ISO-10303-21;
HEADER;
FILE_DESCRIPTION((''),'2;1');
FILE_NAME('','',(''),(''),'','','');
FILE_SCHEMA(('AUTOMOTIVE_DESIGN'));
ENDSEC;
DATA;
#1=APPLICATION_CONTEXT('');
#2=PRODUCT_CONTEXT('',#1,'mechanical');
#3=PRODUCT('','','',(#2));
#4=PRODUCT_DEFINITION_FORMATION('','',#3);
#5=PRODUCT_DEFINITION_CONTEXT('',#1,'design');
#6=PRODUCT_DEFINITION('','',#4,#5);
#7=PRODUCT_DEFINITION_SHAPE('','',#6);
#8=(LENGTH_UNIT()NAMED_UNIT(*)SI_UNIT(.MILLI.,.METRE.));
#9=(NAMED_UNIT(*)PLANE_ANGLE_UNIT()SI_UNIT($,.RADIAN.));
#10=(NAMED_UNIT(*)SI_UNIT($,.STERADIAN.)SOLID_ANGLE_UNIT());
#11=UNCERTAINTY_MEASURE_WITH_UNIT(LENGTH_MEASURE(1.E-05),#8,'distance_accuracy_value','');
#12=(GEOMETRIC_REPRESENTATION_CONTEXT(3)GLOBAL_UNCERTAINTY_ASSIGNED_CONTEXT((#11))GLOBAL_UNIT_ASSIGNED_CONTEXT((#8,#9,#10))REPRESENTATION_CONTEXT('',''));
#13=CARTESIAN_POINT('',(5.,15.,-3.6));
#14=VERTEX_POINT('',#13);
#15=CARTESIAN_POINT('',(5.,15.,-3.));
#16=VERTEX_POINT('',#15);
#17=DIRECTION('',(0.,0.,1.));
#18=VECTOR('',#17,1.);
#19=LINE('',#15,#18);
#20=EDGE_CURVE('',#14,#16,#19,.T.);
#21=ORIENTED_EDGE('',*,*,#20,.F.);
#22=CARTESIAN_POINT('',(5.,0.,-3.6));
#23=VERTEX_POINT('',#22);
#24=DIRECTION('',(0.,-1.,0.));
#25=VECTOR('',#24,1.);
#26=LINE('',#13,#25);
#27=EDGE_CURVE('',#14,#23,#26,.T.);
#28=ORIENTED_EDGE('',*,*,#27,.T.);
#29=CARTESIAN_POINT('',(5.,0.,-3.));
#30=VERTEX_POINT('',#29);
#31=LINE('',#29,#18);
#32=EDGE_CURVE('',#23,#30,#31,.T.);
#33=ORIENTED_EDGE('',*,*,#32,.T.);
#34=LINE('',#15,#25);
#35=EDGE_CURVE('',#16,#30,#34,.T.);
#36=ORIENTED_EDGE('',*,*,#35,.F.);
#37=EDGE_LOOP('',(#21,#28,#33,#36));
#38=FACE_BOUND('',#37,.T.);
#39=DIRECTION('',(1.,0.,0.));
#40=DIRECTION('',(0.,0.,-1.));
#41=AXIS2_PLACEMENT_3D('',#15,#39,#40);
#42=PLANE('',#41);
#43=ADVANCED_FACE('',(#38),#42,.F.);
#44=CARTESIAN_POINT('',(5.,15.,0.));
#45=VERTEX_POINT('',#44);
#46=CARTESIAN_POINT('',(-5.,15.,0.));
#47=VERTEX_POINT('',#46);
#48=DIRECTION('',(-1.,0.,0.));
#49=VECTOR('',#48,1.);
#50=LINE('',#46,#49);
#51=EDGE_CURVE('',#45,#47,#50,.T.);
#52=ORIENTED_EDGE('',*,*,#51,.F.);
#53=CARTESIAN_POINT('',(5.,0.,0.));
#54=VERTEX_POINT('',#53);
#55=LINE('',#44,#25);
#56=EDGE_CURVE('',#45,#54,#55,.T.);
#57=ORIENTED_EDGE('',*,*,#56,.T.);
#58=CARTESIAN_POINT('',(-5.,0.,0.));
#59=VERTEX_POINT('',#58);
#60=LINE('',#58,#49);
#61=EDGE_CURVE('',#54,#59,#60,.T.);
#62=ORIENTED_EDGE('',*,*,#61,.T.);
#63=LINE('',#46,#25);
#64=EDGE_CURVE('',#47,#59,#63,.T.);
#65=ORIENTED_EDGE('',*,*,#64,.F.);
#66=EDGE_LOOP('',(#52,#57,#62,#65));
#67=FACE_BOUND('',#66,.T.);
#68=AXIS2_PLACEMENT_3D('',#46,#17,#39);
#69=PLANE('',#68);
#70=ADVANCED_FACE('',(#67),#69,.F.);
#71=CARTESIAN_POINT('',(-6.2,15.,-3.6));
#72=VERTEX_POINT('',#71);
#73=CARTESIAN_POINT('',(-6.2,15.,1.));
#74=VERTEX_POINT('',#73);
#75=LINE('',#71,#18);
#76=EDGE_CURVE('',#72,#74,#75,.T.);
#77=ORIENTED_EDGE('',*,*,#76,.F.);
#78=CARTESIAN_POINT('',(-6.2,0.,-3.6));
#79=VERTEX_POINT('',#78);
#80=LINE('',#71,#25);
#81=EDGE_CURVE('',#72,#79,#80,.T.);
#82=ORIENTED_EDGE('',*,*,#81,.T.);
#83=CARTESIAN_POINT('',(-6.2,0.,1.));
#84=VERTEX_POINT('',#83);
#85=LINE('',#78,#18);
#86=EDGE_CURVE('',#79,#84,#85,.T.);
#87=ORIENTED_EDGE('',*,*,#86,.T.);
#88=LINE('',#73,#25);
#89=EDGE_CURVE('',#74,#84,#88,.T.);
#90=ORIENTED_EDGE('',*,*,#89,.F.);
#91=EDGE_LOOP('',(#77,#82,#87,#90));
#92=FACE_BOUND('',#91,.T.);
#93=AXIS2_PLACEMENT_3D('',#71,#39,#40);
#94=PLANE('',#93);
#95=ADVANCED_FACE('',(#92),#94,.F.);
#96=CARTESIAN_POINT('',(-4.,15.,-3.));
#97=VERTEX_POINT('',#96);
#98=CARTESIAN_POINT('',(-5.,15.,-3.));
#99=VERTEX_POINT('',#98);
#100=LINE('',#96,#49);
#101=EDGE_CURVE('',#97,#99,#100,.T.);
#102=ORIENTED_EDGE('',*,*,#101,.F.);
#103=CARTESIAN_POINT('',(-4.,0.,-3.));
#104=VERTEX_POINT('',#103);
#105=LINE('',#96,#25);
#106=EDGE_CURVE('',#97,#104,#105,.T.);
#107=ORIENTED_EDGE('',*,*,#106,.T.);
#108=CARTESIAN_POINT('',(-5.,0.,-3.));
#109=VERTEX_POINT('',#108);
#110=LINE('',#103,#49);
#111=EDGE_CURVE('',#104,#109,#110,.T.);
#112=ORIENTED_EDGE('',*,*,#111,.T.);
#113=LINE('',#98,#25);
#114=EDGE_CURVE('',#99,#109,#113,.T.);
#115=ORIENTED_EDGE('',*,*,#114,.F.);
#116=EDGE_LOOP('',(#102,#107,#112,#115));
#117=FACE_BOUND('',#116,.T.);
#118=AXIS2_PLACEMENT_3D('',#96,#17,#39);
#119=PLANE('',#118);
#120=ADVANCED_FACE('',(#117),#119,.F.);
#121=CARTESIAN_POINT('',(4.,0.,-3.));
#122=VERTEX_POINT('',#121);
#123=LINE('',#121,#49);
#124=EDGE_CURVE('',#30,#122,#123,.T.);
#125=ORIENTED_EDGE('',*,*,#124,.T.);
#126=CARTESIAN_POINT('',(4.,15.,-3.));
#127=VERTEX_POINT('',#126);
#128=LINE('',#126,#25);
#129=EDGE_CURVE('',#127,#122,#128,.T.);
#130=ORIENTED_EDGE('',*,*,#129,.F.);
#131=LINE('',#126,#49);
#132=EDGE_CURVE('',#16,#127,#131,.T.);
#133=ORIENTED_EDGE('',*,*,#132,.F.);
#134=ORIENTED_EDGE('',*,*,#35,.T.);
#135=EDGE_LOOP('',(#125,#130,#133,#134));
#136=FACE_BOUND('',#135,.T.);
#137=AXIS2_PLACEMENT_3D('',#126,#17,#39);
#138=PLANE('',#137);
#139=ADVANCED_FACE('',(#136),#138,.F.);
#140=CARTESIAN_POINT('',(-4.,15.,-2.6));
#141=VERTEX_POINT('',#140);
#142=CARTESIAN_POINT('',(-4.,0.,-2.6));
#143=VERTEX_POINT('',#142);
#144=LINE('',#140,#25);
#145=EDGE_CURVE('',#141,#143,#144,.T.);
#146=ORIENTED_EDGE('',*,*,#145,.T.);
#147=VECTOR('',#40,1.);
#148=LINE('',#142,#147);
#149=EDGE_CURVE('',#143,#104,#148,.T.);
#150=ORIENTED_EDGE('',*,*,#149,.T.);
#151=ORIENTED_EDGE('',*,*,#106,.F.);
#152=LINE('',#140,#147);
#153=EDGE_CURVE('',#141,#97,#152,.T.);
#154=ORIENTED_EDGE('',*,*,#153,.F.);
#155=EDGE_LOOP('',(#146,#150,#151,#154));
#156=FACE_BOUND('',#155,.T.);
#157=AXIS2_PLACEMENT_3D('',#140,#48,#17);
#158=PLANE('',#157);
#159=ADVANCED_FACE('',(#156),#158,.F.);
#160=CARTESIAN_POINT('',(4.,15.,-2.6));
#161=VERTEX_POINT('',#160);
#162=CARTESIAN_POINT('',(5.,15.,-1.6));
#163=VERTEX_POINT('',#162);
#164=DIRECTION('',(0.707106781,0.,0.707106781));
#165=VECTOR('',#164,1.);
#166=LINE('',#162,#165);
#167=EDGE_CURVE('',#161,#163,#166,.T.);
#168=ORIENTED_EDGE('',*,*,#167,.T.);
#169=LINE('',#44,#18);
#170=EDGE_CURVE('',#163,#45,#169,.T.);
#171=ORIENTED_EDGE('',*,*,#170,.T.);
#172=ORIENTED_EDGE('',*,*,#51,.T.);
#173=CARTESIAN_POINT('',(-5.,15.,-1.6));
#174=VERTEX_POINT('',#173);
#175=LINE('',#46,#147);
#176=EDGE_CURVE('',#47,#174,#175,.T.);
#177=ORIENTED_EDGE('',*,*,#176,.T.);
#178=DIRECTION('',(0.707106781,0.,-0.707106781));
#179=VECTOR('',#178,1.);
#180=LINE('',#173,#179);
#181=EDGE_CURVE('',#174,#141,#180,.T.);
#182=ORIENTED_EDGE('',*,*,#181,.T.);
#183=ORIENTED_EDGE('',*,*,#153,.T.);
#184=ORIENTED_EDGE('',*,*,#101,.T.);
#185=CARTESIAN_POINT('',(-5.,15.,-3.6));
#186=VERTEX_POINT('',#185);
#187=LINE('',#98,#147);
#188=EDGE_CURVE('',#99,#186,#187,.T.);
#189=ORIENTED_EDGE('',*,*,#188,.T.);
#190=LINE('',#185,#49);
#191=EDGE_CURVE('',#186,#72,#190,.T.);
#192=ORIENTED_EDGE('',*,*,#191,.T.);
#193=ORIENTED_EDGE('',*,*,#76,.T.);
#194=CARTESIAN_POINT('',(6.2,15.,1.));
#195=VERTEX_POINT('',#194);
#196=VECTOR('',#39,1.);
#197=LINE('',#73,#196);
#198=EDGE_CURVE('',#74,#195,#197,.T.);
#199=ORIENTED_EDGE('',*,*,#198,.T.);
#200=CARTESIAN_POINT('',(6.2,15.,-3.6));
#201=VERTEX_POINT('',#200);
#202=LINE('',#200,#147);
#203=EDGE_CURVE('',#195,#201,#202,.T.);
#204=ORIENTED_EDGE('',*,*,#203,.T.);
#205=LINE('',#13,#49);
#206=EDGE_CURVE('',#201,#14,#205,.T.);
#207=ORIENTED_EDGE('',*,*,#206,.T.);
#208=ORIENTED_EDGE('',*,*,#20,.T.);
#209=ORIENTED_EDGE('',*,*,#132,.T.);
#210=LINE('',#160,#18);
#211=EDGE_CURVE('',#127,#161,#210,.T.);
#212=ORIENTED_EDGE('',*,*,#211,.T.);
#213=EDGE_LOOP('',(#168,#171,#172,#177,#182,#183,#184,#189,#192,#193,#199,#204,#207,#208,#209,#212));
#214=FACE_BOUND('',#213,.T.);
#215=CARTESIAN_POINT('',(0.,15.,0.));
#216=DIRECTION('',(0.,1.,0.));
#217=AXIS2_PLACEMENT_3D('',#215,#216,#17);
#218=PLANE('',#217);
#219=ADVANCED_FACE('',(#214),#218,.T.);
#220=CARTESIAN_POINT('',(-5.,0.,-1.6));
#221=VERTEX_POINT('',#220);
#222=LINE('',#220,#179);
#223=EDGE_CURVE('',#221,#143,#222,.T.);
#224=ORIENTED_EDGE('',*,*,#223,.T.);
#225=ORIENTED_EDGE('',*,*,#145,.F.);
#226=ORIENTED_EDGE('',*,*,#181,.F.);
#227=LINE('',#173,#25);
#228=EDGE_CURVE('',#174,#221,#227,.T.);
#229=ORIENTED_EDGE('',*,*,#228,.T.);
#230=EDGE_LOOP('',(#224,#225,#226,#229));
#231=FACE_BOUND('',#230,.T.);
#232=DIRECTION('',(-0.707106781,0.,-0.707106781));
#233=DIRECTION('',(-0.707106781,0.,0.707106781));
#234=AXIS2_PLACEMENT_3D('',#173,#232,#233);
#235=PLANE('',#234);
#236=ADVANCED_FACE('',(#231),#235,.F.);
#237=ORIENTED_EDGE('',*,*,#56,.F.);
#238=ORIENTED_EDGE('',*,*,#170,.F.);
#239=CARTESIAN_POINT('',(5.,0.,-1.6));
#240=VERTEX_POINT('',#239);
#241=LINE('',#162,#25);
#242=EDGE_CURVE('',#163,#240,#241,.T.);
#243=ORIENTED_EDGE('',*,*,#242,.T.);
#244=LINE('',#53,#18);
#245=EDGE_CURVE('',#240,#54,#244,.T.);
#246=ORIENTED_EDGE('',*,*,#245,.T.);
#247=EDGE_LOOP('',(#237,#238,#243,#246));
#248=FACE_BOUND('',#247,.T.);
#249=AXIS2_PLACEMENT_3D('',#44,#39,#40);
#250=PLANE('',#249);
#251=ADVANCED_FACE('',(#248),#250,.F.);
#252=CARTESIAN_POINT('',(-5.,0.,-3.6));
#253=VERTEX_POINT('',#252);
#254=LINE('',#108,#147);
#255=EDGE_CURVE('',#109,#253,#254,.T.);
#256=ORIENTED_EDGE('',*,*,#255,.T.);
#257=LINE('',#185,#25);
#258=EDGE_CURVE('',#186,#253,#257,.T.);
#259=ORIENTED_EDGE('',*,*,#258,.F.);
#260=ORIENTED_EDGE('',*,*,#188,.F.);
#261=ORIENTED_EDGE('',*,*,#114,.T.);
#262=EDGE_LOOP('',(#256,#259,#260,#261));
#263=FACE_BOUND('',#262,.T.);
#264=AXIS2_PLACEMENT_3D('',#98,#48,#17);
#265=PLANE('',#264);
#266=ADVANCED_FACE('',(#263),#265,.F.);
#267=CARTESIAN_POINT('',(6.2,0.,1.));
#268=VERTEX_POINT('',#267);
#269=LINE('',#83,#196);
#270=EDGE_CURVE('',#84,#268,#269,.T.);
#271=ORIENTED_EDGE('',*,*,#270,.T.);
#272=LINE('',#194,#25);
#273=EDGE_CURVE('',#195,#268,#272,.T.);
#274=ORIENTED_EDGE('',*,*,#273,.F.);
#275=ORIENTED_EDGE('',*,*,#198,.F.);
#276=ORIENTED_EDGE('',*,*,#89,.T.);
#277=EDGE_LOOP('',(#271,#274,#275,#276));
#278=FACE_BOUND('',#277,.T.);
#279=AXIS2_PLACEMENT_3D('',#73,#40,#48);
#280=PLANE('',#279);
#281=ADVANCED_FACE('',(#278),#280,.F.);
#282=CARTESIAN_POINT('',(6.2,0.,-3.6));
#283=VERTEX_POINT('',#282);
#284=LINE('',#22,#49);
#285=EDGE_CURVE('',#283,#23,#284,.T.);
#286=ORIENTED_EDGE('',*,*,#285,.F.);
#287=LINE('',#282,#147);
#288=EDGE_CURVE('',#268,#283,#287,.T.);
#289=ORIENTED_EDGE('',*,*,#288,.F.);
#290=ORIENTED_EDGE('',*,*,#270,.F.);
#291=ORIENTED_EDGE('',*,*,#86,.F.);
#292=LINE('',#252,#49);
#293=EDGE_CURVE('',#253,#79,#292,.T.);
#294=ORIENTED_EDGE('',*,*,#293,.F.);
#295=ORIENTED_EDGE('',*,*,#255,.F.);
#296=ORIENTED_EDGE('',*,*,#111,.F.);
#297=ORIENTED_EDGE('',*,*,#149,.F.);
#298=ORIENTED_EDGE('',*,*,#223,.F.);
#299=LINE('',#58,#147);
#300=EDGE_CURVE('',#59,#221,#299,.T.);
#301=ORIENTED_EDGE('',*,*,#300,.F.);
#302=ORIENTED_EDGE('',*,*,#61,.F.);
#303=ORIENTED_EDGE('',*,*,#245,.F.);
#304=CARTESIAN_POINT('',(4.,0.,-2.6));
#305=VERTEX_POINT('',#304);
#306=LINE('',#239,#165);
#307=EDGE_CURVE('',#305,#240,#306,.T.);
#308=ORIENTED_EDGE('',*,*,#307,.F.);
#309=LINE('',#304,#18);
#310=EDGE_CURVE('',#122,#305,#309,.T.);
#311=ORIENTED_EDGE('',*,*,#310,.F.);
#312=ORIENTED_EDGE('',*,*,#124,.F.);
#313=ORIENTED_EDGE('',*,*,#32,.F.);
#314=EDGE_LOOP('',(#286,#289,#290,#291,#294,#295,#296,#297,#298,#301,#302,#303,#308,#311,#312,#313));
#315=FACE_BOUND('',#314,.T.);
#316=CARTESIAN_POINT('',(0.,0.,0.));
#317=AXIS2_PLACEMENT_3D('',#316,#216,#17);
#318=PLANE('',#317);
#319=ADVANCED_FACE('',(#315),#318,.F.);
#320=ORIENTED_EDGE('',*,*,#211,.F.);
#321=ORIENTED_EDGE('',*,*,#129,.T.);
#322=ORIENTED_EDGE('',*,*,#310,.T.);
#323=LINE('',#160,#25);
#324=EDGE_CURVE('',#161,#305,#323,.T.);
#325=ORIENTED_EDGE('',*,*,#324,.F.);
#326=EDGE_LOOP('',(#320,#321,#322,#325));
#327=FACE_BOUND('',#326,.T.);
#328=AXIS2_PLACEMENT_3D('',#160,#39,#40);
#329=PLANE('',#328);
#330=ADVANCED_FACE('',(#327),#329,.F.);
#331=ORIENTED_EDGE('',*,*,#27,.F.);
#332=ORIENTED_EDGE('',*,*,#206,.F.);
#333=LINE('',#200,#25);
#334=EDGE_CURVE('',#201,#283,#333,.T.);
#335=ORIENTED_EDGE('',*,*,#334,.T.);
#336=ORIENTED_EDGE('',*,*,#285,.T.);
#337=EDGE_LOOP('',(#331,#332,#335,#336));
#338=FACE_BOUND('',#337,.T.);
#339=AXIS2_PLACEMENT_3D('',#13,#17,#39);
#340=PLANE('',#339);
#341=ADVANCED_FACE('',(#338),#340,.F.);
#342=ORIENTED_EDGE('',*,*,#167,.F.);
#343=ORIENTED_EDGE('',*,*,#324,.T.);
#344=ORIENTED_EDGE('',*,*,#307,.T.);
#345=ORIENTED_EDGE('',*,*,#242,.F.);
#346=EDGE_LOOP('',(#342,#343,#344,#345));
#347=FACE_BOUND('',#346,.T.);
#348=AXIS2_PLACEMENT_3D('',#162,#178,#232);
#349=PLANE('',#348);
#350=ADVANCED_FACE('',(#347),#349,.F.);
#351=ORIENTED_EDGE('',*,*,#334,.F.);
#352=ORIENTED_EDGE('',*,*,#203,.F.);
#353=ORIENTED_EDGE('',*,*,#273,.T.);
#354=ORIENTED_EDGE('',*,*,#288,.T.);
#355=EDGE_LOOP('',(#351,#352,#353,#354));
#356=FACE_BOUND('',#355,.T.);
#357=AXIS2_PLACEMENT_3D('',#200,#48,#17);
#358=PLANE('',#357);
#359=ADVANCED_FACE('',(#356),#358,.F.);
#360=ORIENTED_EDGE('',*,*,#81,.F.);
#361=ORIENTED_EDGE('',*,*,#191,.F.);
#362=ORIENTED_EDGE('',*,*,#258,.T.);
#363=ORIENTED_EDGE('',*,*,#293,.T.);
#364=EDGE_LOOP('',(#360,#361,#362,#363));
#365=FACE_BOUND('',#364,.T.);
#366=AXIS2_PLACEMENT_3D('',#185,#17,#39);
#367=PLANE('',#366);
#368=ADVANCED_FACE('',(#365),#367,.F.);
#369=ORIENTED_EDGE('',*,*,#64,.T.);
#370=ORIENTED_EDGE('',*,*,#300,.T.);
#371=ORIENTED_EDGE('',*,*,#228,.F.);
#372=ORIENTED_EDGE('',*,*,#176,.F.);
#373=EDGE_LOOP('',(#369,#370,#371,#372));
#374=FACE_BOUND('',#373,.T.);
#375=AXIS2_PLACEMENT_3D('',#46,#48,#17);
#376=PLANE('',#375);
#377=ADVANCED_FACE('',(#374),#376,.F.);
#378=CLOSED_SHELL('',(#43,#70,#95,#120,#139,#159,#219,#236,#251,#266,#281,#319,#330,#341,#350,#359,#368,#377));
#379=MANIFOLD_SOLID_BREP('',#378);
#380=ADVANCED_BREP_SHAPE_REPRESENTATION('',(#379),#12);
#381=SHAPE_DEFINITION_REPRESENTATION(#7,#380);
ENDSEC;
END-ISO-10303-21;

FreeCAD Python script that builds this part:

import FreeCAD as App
import Part
import Sketcher
from FreeCAD import Vector


def add_polygon(sketch, points):
    """Adds a closed chain of lines whose ends are joined by coincident constraints."""
    first, n = sketch.GeometryCount, len(points)
    for a, b in zip(points, points[1:] + points[:1]):
        sketch.addGeometry(Part.LineSegment(App.Vector(*a, 0), App.Vector(*b, 0)), False)
    for i in range(n):
        sketch.addConstraint(Sketcher.Constraint("Coincident", first + i, 2, first + (i + 1) % n, 1))

doc = App.newDocument("Part")
body = doc.addObject("PartDesign::Body", "Body")

sketch1 = body.newObject("Sketcher::SketchObject", "Sketch")
sketch1.AttachmentSupport = (doc.getObject("XZ_Plane"), [""])
sketch1.MapMode = "FlatFace"
add_polygon(sketch1, [(5, 0), (-5, 0), (-5, -1.6), (-4, -2.6), (-4, -3), (-5, -3), (-5, -3.6), (-6.2, -3.6), (-6.2, 1), (6.2, 1), (6.2, -3.6), (5, -3.6), (5, -3), (4, -3), (4, -2.6), (5, -1.6)])
sketch1.addConstraint(Sketcher.Constraint("Horizontal", 0))
sketch1.addConstraint(Sketcher.Constraint("Vertical", 1))
sketch1.addConstraint(Sketcher.Constraint("Vertical", 3))
sketch1.addConstraint(Sketcher.Constraint("Horizontal", 4))
sketch1.addConstraint(Sketcher.Constraint("Vertical", 5))
sketch1.addConstraint(Sketcher.Constraint("Horizontal", 6))
sketch1.addConstraint(Sketcher.Constraint("Vertical", 7))
sketch1.addConstraint(Sketcher.Constraint("Horizontal", 8))
sketch1.addConstraint(Sketcher.Constraint("Vertical", 9))
sketch1.addConstraint(Sketcher.Constraint("Horizontal", 10))
sketch1.addConstraint(Sketcher.Constraint("Vertical", 11))
sketch1.addConstraint(Sketcher.Constraint("Horizontal", 12))
sketch1.addConstraint(Sketcher.Constraint("Vertical", 13))
sketch1.addConstraint(Sketcher.Constraint("Vertical", 15))
sketch1.addConstraint(Sketcher.Constraint("Symmetric", 0, 2, 15, 2, -1, 1))
sketch1.addConstraint(Sketcher.Constraint("Symmetric", 6, 2, 9, 2, -2))
sketch1.addConstraint(Sketcher.Constraint("Symmetric", 4, 2, 11, 2, -2))
sketch1.addConstraint(Sketcher.Constraint("Symmetric", 2, 2, 13, 2, -2))
sketch1.addConstraint(Sketcher.Constraint("Perpendicular", 2, 14))
sketch1.addConstraint(Sketcher.Constraint("Horizontal", 1, 2, 14, 2))
sketch1.addConstraint(Sketcher.Constraint("Vertical", 1, 2, 4, 2))
sketch1.addConstraint(Sketcher.Constraint("DistanceX", 0, 2, 0, 1, 10.0))
sketch1.addConstraint(Sketcher.Constraint("DistanceX", 4, 2, 4, 1, 1.0))
sketch1.addConstraint(Sketcher.Constraint("DistanceX", 6, 2, 6, 1, 1.2))
sketch1.addConstraint(Sketcher.Constraint("DistanceY", 1, 2, 1, 1, 1.6))
sketch1.addConstraint(Sketcher.Constraint("DistanceY", 3, 2, 3, 1, 0.4))
sketch1.addConstraint(Sketcher.Constraint("DistanceY", 5, 2, 5, 1, 0.6))
sketch1.addConstraint(Sketcher.Constraint("DistanceY", 7, 1, 7, 2, 4.6))
pad1 = body.newObject("PartDesign::Pad", "Pad")
pad1.Profile = sketch1
pad1.Length = 15
pad1.Reversed = True

doc.recompute()
